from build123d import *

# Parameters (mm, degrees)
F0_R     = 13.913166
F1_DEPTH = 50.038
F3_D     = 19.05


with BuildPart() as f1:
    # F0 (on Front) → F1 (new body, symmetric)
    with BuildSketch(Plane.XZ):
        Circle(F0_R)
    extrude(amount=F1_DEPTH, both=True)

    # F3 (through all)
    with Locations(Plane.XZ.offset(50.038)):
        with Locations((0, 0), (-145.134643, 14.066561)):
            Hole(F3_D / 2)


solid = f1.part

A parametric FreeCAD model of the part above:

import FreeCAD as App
import Part
import Sketcher
from FreeCAD import Vector
Q = App.Units.Quantity

doc = App.newDocument("Part")
body = doc.addObject("PartDesign::Body", "Body")

# Sketch on XZ plane
sketch1 = body.newObject("Sketcher::SketchObject", "Sketch")
sketch1.AttachmentSupport = (doc.getObject("XZ_Plane"), [""])
sketch1.MapMode = "FlatFace"
sketch1.addGeometry(Part.Circle(Vector(0, 0, 0), Vector(0, 0, 1), 14), False)
sketch1.addConstraint([
    Sketcher.Constraint("Coincident", 0, 3, -1, 1),
    Sketcher.Constraint("Diameter", 0, Q("27.826332 mm")),
])
pad1 = body.newObject("PartDesign::Pad", "Pad")
pad1.Profile = sketch1
pad1.Length = Q("3.94 in")
pad1.Midplane = True

# Sketch on XZ plane
sketch2 = body.newObject("Sketcher::SketchObject", "Sketch001")
sketch2.AttachmentSupport = (doc.getObject("XZ_Plane"), [""])
sketch2.MapMode = "FlatFace"
sketch2.AttachmentOffset = App.Placement(Vector(0, 0, 1.97 * 25.4), App.Rotation())
sketch2.addGeometry([
    Part.Circle(Vector(0, 0, 0), Vector(0, 0, 1), 10),
    Part.Circle(Vector(-145, 14, 0), Vector(0, 0, 1), 10),
], False)
sketch2.addConstraint([
    Sketcher.Constraint("Coincident", 0, 3, -1, 1),
    Sketcher.Constraint("Equal", 0, 1),
    Sketcher.Constraint("Diameter", 0, Q("0.75 in")),
    Sketcher.Constraint("DistanceY", -1, 1, 1, 3, Q("14.066561 mm")),
    Sketcher.Constraint("DistanceX", 1, 3, -1, 1, Q("145.134643 mm")),
])
doc.recompute()
hole = body.newObject("PartDesign::Hole", "Hole")
hole.Profile = sketch2
hole.ThreadType = "None"
hole.Diameter = Q("0.75 in")
hole.DepthType = "ThroughAll"

doc.recompute()
